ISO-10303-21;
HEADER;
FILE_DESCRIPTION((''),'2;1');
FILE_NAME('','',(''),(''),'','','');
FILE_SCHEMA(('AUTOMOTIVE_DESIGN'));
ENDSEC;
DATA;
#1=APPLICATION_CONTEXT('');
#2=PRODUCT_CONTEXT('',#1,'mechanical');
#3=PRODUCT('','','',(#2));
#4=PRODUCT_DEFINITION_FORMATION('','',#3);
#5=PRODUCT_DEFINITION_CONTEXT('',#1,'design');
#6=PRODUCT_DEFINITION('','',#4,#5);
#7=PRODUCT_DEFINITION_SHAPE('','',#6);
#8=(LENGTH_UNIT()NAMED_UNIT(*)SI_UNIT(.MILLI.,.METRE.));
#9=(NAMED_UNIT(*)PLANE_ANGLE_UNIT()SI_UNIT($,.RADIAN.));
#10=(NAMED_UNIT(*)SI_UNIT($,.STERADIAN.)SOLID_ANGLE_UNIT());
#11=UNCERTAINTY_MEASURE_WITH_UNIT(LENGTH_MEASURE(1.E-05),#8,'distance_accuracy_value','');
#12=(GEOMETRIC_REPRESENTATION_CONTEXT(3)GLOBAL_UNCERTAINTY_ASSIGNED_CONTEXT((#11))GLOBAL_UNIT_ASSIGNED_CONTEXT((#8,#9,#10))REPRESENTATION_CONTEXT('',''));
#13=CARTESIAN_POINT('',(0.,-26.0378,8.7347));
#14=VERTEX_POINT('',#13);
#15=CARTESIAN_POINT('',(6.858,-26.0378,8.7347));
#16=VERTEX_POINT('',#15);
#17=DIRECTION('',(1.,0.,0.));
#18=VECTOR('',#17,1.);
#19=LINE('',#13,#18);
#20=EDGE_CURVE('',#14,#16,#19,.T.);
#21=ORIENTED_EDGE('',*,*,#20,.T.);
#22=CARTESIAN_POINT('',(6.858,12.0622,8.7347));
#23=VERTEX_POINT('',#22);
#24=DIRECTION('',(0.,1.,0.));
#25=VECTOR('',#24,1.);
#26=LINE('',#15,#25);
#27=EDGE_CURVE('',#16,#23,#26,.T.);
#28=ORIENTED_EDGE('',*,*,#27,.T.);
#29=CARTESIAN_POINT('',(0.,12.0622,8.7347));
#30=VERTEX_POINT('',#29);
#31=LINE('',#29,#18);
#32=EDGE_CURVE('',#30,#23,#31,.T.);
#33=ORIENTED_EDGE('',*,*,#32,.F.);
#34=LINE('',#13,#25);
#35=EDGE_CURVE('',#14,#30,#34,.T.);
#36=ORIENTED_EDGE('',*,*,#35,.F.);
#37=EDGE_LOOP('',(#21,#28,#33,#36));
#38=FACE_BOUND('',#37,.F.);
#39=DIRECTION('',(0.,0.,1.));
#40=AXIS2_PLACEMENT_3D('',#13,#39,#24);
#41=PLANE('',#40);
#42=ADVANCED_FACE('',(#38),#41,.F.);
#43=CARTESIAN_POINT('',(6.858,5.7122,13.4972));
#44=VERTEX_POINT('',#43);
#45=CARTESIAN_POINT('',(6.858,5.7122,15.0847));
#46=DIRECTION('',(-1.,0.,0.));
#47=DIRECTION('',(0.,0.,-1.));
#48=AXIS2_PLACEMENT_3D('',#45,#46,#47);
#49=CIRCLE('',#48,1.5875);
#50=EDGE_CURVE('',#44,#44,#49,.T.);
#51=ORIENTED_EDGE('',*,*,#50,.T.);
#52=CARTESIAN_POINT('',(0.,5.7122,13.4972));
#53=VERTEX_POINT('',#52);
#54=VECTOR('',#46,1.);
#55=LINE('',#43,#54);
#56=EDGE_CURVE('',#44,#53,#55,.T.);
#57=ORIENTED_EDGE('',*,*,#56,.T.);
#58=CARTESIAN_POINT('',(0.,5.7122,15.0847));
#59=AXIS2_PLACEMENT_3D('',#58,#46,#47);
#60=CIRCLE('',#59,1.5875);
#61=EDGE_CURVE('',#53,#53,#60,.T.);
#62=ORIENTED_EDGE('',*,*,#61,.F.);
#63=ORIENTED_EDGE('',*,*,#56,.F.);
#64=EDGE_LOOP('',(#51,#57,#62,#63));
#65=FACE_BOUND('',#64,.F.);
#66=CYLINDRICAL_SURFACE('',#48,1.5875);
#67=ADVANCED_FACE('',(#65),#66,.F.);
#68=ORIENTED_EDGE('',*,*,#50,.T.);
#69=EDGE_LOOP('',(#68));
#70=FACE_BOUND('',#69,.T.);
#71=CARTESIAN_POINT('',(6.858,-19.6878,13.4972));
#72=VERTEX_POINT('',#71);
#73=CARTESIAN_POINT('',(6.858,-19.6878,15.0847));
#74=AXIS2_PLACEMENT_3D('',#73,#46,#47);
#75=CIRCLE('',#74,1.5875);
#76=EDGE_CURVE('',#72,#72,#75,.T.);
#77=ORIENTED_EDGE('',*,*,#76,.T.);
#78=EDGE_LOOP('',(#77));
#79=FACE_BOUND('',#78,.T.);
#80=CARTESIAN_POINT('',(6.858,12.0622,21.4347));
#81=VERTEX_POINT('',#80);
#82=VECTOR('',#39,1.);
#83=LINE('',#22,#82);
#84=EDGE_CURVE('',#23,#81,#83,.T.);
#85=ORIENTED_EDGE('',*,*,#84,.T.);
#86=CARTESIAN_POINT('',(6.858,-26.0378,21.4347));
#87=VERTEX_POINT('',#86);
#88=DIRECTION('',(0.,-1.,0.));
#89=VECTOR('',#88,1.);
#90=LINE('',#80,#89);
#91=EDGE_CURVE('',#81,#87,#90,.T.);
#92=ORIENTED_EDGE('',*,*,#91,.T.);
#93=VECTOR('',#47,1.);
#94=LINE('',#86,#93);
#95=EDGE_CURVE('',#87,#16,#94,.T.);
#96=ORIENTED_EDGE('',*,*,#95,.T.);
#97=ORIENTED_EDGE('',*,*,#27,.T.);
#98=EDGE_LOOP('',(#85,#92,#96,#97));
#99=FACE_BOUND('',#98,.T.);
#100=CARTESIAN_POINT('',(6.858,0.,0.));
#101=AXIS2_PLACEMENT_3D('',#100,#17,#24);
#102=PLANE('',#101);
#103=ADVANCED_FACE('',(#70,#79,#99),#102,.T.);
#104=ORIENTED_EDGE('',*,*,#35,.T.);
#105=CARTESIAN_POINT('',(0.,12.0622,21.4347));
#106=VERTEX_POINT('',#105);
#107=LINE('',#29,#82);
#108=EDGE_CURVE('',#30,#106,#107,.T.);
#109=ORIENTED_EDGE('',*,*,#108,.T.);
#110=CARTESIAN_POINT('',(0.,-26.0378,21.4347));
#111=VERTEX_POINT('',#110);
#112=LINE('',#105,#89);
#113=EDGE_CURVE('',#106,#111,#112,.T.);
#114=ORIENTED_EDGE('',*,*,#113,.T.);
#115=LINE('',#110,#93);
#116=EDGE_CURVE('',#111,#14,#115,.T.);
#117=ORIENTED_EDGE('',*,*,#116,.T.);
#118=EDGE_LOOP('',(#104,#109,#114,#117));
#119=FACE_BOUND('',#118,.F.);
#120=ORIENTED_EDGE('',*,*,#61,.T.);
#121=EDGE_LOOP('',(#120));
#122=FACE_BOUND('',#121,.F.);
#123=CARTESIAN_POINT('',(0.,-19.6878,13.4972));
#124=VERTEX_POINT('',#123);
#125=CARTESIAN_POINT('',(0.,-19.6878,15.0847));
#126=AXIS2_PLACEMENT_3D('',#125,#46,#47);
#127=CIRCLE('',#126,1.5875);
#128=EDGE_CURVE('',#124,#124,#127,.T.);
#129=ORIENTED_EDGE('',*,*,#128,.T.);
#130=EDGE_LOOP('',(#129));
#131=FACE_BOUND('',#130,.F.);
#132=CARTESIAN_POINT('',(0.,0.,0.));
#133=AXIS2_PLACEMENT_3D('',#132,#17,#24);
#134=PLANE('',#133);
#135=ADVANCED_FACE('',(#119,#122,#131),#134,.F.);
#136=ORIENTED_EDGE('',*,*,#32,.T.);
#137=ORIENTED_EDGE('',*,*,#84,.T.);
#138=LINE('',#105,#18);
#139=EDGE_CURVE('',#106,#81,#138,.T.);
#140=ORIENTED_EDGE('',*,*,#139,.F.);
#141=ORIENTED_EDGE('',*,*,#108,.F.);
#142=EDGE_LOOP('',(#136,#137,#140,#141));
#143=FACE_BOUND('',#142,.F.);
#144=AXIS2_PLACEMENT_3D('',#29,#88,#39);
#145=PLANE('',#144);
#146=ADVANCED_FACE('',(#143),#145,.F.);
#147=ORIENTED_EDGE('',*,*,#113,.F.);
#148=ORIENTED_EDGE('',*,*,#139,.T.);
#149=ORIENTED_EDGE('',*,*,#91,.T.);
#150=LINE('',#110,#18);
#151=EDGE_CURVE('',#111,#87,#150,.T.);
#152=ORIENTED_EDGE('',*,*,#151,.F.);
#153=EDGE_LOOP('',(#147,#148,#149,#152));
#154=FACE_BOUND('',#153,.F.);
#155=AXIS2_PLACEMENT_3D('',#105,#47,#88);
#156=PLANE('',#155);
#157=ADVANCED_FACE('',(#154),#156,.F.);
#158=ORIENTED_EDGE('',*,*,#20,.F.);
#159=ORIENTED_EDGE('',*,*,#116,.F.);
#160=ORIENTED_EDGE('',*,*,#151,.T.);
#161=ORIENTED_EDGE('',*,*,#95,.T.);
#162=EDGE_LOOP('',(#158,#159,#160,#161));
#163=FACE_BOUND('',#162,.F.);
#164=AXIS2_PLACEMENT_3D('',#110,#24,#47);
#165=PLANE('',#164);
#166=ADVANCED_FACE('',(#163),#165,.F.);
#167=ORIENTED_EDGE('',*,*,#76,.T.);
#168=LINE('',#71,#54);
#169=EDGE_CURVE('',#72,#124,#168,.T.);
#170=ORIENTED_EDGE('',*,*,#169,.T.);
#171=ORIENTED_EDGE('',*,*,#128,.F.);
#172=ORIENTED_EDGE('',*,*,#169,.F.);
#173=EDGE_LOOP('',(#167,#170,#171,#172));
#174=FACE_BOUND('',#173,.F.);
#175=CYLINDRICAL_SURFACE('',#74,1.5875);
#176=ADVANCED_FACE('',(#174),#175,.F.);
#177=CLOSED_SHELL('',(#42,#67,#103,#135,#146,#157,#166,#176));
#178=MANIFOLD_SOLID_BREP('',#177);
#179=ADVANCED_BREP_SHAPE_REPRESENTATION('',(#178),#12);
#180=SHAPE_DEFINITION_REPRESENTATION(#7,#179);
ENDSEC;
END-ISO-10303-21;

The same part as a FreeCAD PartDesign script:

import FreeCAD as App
import Part
import Sketcher
Q = App.Units.Quantity


def add_polygon(sketch, points):
    """Adds a closed chain of lines whose ends are joined by coincident constraints."""
    first, n = sketch.GeometryCount, len(points)
    for a, b in zip(points, points[1:] + points[:1]):
        sketch.addGeometry(Part.LineSegment(App.Vector(*a, 0), App.Vector(*b, 0)), False)
    for i in range(n):
        sketch.addConstraint(Sketcher.Constraint("Coincident", first + i, 2, first + (i + 1) % n, 1))

doc = App.newDocument("Part")
body = doc.addObject("PartDesign::Body", "Body")

sketch1 = doc.addObject("Sketcher::SketchObject", "Sketch")
body.addObject(sketch1)
sketch1.AttachmentSupport = (doc.YZ_Plane, [""])
sketch1.MapMode = "FlatFace"
add_polygon(sketch1, [(12, 9), (12, 21), (-26, 21), (-26, 9)])
sketch1.addConstraint(Sketcher.Constraint("Vertical", 0))
sketch1.addConstraint(Sketcher.Constraint("Horizontal", 1))
sketch1.addConstraint(Sketcher.Constraint("Vertical", 2))
sketch1.addConstraint(Sketcher.Constraint("Horizontal", 3))
sketch1.addConstraint(Sketcher.Constraint("DistanceX", 1, 2, 1, 1, Q("1.5 in")))
sketch1.addConstraint(Sketcher.Constraint("DistanceY", 0, 1, 0, 2, Q("0.5 in")))
sketch1.addConstraint(Sketcher.Constraint("DistanceX", -1, 1, 0, 2, Q("0.4749 in")))
sketch1.addConstraint(Sketcher.Constraint("DistanceY", -1, 1, 0, 2, Q("21.4347 mm")))
pad1 = doc.addObject("PartDesign::Pad", "Pad")
body.addObject(pad1)
pad1.Profile = sketch1
pad1.Length = Q("0.27 in")

sketch2 = doc.addObject("Sketcher::SketchObject", "Sketch001")
body.addObject(sketch2)
sketch2.AttachmentSupport = (doc.YZ_Plane, [""])
sketch2.MapMode = "FlatFace"
sketch2.AttachmentOffset = App.Placement(App.Vector(0, 0, 0.27 * 25.4), App.Rotation())
sketch2.addGeometry(Part.Circle(App.Vector(5.7, 15.1, 0), App.Vector(0, 0, 1), 1.6), False)
sketch2.addGeometry(Part.Circle(App.Vector(-19.7, 15.1, 0), App.Vector(0, 0, 1), 1.6), False)
sketch2.addConstraint(Sketcher.Constraint("Equal", 0, 1))
sketch2.addConstraint(Sketcher.Constraint("Horizontal", 0, 3, 1, 3))
sketch2.addConstraint(Sketcher.Constraint("Diameter", 0, Q("0.125 in")))
sketch2.addConstraint(Sketcher.Constraint("DistanceX", 1, 3, 0, 3, Q("1 in")))
sketch2.addConstraint(Sketcher.Constraint("DistanceX", -1, 1, 0, 3, Q("0.2249 in")))
sketch2.addConstraint(Sketcher.Constraint("DistanceY", -1, 1, 0, 3, Q("15.0847 mm")))
doc.recompute()
hole = doc.addObject("PartDesign::Hole", "Hole")
body.addObject(hole)
hole.Profile = sketch2
hole.ThreadType = "None"
hole.Diameter = Q("0.125 in")
hole.DepthType = "ThroughAll"

doc.recompute()
